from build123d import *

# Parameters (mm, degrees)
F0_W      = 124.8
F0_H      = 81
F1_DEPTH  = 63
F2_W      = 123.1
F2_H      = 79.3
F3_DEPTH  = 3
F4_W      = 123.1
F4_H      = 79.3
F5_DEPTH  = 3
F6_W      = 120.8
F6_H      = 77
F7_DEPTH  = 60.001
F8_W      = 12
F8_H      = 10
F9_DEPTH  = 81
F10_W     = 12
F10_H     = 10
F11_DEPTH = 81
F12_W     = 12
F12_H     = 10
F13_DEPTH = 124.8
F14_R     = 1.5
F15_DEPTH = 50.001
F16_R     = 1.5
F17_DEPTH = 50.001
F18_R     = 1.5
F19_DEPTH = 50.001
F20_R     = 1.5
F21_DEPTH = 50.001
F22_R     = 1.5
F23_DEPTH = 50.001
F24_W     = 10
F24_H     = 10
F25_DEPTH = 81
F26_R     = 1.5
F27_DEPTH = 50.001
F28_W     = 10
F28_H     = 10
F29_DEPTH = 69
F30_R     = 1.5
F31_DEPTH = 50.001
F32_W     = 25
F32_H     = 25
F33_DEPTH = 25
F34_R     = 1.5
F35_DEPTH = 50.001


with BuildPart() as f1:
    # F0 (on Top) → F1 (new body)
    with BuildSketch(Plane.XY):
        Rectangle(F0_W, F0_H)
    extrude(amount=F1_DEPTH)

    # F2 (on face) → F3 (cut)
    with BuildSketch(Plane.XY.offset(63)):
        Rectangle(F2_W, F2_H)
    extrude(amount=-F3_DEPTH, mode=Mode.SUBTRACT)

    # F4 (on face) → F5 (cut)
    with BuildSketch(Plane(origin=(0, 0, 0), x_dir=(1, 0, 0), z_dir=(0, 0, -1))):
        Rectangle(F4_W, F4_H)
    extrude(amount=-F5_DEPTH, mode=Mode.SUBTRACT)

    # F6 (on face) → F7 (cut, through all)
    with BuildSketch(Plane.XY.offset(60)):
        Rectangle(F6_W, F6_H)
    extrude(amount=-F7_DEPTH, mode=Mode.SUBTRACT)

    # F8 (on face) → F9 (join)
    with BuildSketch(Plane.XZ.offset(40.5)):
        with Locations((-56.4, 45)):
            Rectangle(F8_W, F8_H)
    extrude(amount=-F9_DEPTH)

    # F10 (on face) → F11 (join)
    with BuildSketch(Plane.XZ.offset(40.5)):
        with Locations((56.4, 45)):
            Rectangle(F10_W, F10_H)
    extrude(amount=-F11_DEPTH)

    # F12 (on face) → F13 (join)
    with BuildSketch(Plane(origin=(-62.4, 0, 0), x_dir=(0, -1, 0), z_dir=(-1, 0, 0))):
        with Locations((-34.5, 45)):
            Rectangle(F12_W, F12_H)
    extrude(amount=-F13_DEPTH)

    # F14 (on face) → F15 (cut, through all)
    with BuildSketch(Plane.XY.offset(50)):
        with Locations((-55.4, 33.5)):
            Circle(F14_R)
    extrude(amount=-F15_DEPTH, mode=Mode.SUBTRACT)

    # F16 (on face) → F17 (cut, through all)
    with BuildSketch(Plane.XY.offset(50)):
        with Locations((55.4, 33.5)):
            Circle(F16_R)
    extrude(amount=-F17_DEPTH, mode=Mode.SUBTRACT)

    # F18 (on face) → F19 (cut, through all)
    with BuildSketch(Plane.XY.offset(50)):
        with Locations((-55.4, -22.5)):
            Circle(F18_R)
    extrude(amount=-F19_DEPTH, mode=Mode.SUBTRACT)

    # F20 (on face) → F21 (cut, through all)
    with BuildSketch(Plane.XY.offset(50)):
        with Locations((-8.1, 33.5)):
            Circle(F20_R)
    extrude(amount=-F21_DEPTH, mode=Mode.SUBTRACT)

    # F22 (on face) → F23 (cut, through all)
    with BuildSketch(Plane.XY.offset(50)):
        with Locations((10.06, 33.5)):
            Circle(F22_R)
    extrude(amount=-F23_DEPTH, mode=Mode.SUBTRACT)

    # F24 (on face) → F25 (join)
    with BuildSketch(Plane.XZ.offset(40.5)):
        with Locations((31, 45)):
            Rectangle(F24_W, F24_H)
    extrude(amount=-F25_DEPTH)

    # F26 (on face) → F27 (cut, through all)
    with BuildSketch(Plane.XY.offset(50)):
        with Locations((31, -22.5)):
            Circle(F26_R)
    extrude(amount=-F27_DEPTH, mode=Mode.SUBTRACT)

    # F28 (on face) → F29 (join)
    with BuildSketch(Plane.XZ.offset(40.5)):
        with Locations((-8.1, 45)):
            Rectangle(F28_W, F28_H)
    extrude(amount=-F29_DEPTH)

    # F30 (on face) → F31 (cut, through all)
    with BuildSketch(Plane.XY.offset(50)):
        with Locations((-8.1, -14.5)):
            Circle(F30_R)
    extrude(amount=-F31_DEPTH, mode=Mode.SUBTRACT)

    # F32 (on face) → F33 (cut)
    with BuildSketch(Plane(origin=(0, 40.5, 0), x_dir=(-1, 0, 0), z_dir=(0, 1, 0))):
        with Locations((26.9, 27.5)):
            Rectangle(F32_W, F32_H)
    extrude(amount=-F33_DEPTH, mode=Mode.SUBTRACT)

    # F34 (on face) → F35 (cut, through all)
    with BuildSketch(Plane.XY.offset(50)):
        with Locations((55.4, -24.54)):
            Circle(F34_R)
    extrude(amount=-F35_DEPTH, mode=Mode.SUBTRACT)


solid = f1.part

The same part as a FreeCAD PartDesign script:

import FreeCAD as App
import Part
import Sketcher

V = App.Vector
Q = App.Units.Quantity


def add_polygon(sketch, points):
    """Adds a closed chain of lines whose ends are joined by coincident constraints."""
    first, n = sketch.GeometryCount, len(points)
    for a, b in zip(points, points[1:] + points[:1]):
        sketch.addGeometry(Part.LineSegment(App.Vector(*a, 0), App.Vector(*b, 0)), False)
    for i in range(n):
        sketch.addConstraint(Sketcher.Constraint("Coincident", first + i, 2, first + (i + 1) % n, 1))

doc = App.newDocument("Part")
body = doc.addObject("PartDesign::Body", "Body")

# Sketch on XY plane
sketch1 = body.newObject("Sketcher::SketchObject", "Sketch")
sketch1.AttachmentSupport = (doc.getObject("XY_Plane"), [""])
sketch1.MapMode = "FlatFace"
add_polygon(sketch1, [(-62, 40), (-62, -40), (62, -40), (62, 40)])  # lines 0-3
sketch1.addConstraint(Sketcher.Constraint("Vertical", 0))
sketch1.addConstraint(Sketcher.Constraint("Horizontal", 1))
sketch1.addConstraint(Sketcher.Constraint("Vertical", 2))
sketch1.addConstraint(Sketcher.Constraint("Horizontal", 3))
sketch1.addConstraint(Sketcher.Constraint("Symmetric", 0, 2, 2, 2, -1, 1))
sketch1.addConstraint(Sketcher.Constraint("DistanceY", 0, 2, 0, 1, Q("81 mm")))
sketch1.addConstraint(Sketcher.Constraint("DistanceX", 1, 1, 1, 2, Q("124.8 mm")))
pad1 = body.newObject("PartDesign::Pad", "Pad")
pad1.Profile = sketch1
pad1.Length = 63

# Sketch on XY plane
sketch2 = body.newObject("Sketcher::SketchObject", "Sketch001")
sketch2.AttachmentSupport = (doc.getObject("XY_Plane"), [""])
sketch2.MapMode = "FlatFace"
sketch2.AttachmentOffset = App.Placement(V(0, 0, 63), App.Rotation())
add_polygon(sketch2, [(-62, 40), (-62, -40), (62, -40), (62, 40)])  # lines 0-3
sketch2.addConstraint(Sketcher.Constraint("Vertical", 0))
sketch2.addConstraint(Sketcher.Constraint("Horizontal", 1))
sketch2.addConstraint(Sketcher.Constraint("Vertical", 2))
sketch2.addConstraint(Sketcher.Constraint("Horizontal", 3))
sketch2.addConstraint(Sketcher.Constraint("Symmetric", 0, 2, 2, 2, -1, 1))
sketch2.addConstraint(Sketcher.Constraint("DistanceX", 1, 1, 1, 2, Q("123.1 mm")))
sketch2.addConstraint(Sketcher.Constraint("DistanceY", 0, 2, 0, 1, Q("79.3 mm")))
pocket1 = body.newObject("PartDesign::Pocket", "Pocket")
pocket1.Profile = sketch2
pocket1.Length = 3

# Sketch on XY plane
sketch3 = body.newObject("Sketcher::SketchObject", "Sketch002")
sketch3.AttachmentSupport = (doc.getObject("XY_Plane"), [""])
sketch3.MapMode = "FlatFace"
add_polygon(sketch3, [(-62, -40), (-62, 40), (62, 40), (62, -40)])  # lines 0-3
sketch3.addConstraint(Sketcher.Constraint("Vertical", 0))
sketch3.addConstraint(Sketcher.Constraint("Horizontal", 1))
sketch3.addConstraint(Sketcher.Constraint("Vertical", 2))
sketch3.addConstraint(Sketcher.Constraint("Horizontal", 3))
sketch3.addConstraint(Sketcher.Constraint("Symmetric", 0, 2, 2, 2, -1, 1))
sketch3.addConstraint(Sketcher.Constraint("DistanceX", 1, 1, 1, 2, Q("123.1 mm")))
sketch3.addConstraint(Sketcher.Constraint("DistanceY", 0, 1, 0, 2, Q("79.3 mm")))
pocket2 = body.newObject("PartDesign::Pocket", "Pocket001")
pocket2.Profile = sketch3
pocket2.Length = 3
pocket2.Reversed = True

# Sketch on XY plane
sketch4 = body.newObject("Sketcher::SketchObject", "Sketch003")
sketch4.AttachmentSupport = (doc.getObject("XY_Plane"), [""])
sketch4.MapMode = "FlatFace"
sketch4.AttachmentOffset = App.Placement(V(0, 0, 60), App.Rotation())
add_polygon(sketch4, [(-60, 38), (-60, -38), (60, -38), (60, 38)])  # lines 0-3
sketch4.addConstraint(Sketcher.Constraint("Vertical", 0))
sketch4.addConstraint(Sketcher.Constraint("Horizontal", 1))
sketch4.addConstraint(Sketcher.Constraint("Vertical", 2))
sketch4.addConstraint(Sketcher.Constraint("Horizontal", 3))
sketch4.addConstraint(Sketcher.Constraint("Symmetric", 0, 2, 2, 2, -1, 1))
sketch4.addConstraint(Sketcher.Constraint("DistanceY", 0, 2, 0, 1, Q("77 mm")))
sketch4.addConstraint(Sketcher.Constraint("DistanceX", 1, 1, 1, 2, Q("120.8 mm")))
pocket3 = body.newObject("PartDesign::Pocket", "Pocket002")
pocket3.Profile = sketch4
pocket3.Type = "ThroughAll"

# Sketch on XZ plane
sketch5 = body.newObject("Sketcher::SketchObject", "Sketch004")
sketch5.AttachmentSupport = (doc.getObject("XZ_Plane"), [""])
sketch5.MapMode = "FlatFace"
sketch5.AttachmentOffset = App.Placement(V(0, 0, 40.5), App.Rotation())
add_polygon(sketch5, [(-62, 50), (-62, 40), (-50, 40), (-50, 50)])  # lines 0-3
sketch5.addConstraint(Sketcher.Constraint("Vertical", 0))
sketch5.addConstraint(Sketcher.Constraint("Horizontal", 1))
sketch5.addConstraint(Sketcher.Constraint("Vertical", 2))
sketch5.addConstraint(Sketcher.Constraint("Horizontal", 3))
sketch5.addConstraint(Sketcher.Constraint("DistanceX", 1, 1, 1, 2, Q("12 mm")))
sketch5.addConstraint(Sketcher.Constraint("DistanceY", 0, 2, 0, 1, Q("10 mm")))
sketch5.addConstraint(Sketcher.Constraint("DistanceY", -1, 1, 0, 2, Q("40 mm")))
sketch5.addConstraint(Sketcher.Constraint("DistanceX", 0, 2, -1, 1, Q("62.4 mm")))
pad2 = body.newObject("PartDesign::Pad", "Pad001")
pad2.Profile = sketch5
pad2.Length = 81
pad2.Reversed = True

# Sketch on XZ plane
sketch6 = body.newObject("Sketcher::SketchObject", "Sketch005")
sketch6.AttachmentSupport = (doc.getObject("XZ_Plane"), [""])
sketch6.MapMode = "FlatFace"
sketch6.AttachmentOffset = App.Placement(V(0, 0, 40.5), App.Rotation())
add_polygon(sketch6, [(50, 50), (50, 40), (62, 40), (62, 50)])  # lines 0-3
sketch6.addConstraint(Sketcher.Constraint("Vertical", 0))
sketch6.addConstraint(Sketcher.Constraint("Horizontal", 1))
sketch6.addConstraint(Sketcher.Constraint("Vertical", 2))
sketch6.addConstraint(Sketcher.Constraint("Horizontal", 3))
sketch6.addConstraint(Sketcher.Constraint("DistanceX", 1, 1, 1, 2, Q("12 mm")))
sketch6.addConstraint(Sketcher.Constraint("DistanceY", 0, 2, 0, 1, Q("10 mm")))
sketch6.addConstraint(Sketcher.Constraint("DistanceY", -1, 1, 0, 2, Q("40 mm")))
sketch6.addConstraint(Sketcher.Constraint("DistanceX", -1, 1, 0, 2, Q("50.4 mm")))
pad3 = body.newObject("PartDesign::Pad", "Pad002")
pad3.Profile = sketch6
pad3.Length = 81
pad3.Reversed = True

# Sketch on YZ plane
sketch7 = body.newObject("Sketcher::SketchObject", "Sketch006")
sketch7.AttachmentSupport = (doc.getObject("YZ_Plane"), [""])
sketch7.MapMode = "FlatFace"
sketch7.AttachmentOffset = App.Placement(V(0, 0, -62.4), App.Rotation())
add_polygon(sketch7, [(40, 50), (40, 40), (28, 40), (28, 50)])  # lines 0-3
sketch7.addConstraint(Sketcher.Constraint("Vertical", 0))
sketch7.addConstraint(Sketcher.Constraint("Horizontal", 1))
sketch7.addConstraint(Sketcher.Constraint("Vertical", 2))
sketch7.addConstraint(Sketcher.Constraint("Horizontal", 3))
sketch7.addConstraint(Sketcher.Constraint("DistanceX", 1, 2, 1, 1, Q("12 mm")))
sketch7.addConstraint(Sketcher.Constraint("DistanceY", 0, 2, 0, 1, Q("10 mm")))
sketch7.addConstraint(Sketcher.Constraint("DistanceY", -1, 1, 0, 2, Q("40 mm")))
sketch7.addConstraint(Sketcher.Constraint("DistanceX", -1, 1, 0, 2, Q("40.5 mm")))
pad4 = body.newObject("PartDesign::Pad", "Pad003")
pad4.Profile = sketch7
pad4.Length = 124.8

# Sketch on XY plane
sketch8 = body.newObject("Sketcher::SketchObject", "Sketch007")
sketch8.AttachmentSupport = (doc.getObject("XY_Plane"), [""])
sketch8.MapMode = "FlatFace"
sketch8.AttachmentOffset = App.Placement(V(0, 0, 50), App.Rotation())
sketch8.addGeometry(Part.Circle(V(-55.4, 33.5, 0), V(0, 0, 1), 1.5), False)
sketch8.addConstraint(Sketcher.Constraint("Diameter", 0, Q("3 mm")))
sketch8.addConstraint(Sketcher.Constraint("DistanceX", 0, 3, -1, 1, Q("55.4 mm")))
sketch8.addConstraint(Sketcher.Constraint("DistanceY", -1, 1, 0, 3, Q("33.5 mm")))
pocket4 = body.newObject("PartDesign::Pocket", "Pocket003")
pocket4.Profile = sketch8
pocket4.Type = "ThroughAll"

# Sketch on XY plane
sketch9 = body.newObject("Sketcher::SketchObject", "Sketch008")
sketch9.AttachmentSupport = (doc.getObject("XY_Plane"), [""])
sketch9.MapMode = "FlatFace"
sketch9.AttachmentOffset = App.Placement(V(0, 0, 50), App.Rotation())
sketch9.addGeometry(Part.Circle(V(55.4, 33.5, 0), V(0, 0, 1), 1.5), False)
sketch9.addConstraint(Sketcher.Constraint("Diameter", 0, Q("3 mm")))
sketch9.addConstraint(Sketcher.Constraint("DistanceX", -1, 1, 0, 3, Q("55.4 mm")))
sketch9.addConstraint(Sketcher.Constraint("DistanceY", -1, 1, 0, 3, Q("33.5 mm")))
pocket5 = body.newObject("PartDesign::Pocket", "Pocket004")
pocket5.Profile = sketch9
pocket5.Type = "ThroughAll"

# Sketch on XY plane
sketch10 = body.newObject("Sketcher::SketchObject", "Sketch009")
sketch10.AttachmentSupport = (doc.getObject("XY_Plane"), [""])
sketch10.MapMode = "FlatFace"
sketch10.AttachmentOffset = App.Placement(V(0, 0, 50), App.Rotation())
sketch10.addGeometry(Part.Circle(V(-55.4, -22.5, 0), V(0, 0, 1), 1.5), False)
sketch10.addConstraint(Sketcher.Constraint("Diameter", 0, Q("3 mm")))
sketch10.addConstraint(Sketcher.Constraint("DistanceX", 0, 3, -1, 1, Q("55.4 mm")))
sketch10.addConstraint(Sketcher.Constraint("DistanceY", 0, 3, -1, 1, Q("22.5 mm")))
pocket6 = body.newObject("PartDesign::Pocket", "Pocket005")
pocket6.Profile = sketch10
pocket6.Type = "ThroughAll"

# Sketch on XY plane
sketch11 = body.newObject("Sketcher::SketchObject", "Sketch010")
sketch11.AttachmentSupport = (doc.getObject("XY_Plane"), [""])
sketch11.MapMode = "FlatFace"
sketch11.AttachmentOffset = App.Placement(V(0, 0, 50), App.Rotation())
sketch11.addGeometry(Part.Circle(V(-8.1, 33.5, 0), V(0, 0, 1), 1.5), False)
sketch11.addConstraint(Sketcher.Constraint("Diameter", 0, Q("3 mm")))
sketch11.addConstraint(Sketcher.Constraint("DistanceX", 0, 3, -1, 1, Q("8.1 mm")))
sketch11.addConstraint(Sketcher.Constraint("DistanceY", -1, 1, 0, 3, Q("33.5 mm")))
pocket7 = body.newObject("PartDesign::Pocket", "Pocket006")
pocket7.Profile = sketch11
pocket7.Type = "ThroughAll"

# Sketch on XY plane
sketch12 = body.newObject("Sketcher::SketchObject", "Sketch011")
sketch12.AttachmentSupport = (doc.getObject("XY_Plane"), [""])
sketch12.MapMode = "FlatFace"
sketch12.AttachmentOffset = App.Placement(V(0, 0, 50), App.Rotation())
sketch12.addGeometry(Part.Circle(V(10.1, 33.5, 0), V(0, 0, 1), 1.5), False)
sketch12.addConstraint(Sketcher.Constraint("Diameter", 0, Q("3 mm")))
sketch12.addConstraint(Sketcher.Constraint("DistanceY", -1, 1, 0, 3, Q("33.5 mm")))
sketch12.addConstraint(Sketcher.Constraint("DistanceX", -1, 1, 0, 3, Q("10.06 mm")))
pocket8 = body.newObject("PartDesign::Pocket", "Pocket007")
pocket8.Profile = sketch12
pocket8.Type = "ThroughAll"

# Sketch on XZ plane
sketch13 = body.newObject("Sketcher::SketchObject", "Sketch012")
sketch13.AttachmentSupport = (doc.getObject("XZ_Plane"), [""])
sketch13.MapMode = "FlatFace"
sketch13.AttachmentOffset = App.Placement(V(0, 0, 40.5), App.Rotation())
add_polygon(sketch13, [(26, 50), (26, 40), (36, 40), (36, 50)])  # lines 0-3
sketch13.addConstraint(Sketcher.Constraint("Vertical", 0))
sketch13.addConstraint(Sketcher.Constraint("Horizontal", 1))
sketch13.addConstraint(Sketcher.Constraint("Vertical", 2))
sketch13.addConstraint(Sketcher.Constraint("Horizontal", 3))
sketch13.addConstraint(Sketcher.Constraint("Equal", 3, 0))
sketch13.addConstraint(Sketcher.Constraint("DistanceX", 1, 1, 1, 2, Q("10 mm")))
sketch13.addConstraint(Sketcher.Constraint("DistanceX", -1, 1, 0, 2, Q("26 mm")))
sketch13.addConstraint(Sketcher.Constraint("DistanceY", -1, 1, 0, 2, Q("40 mm")))
pad5 = body.newObject("PartDesign::Pad", "Pad004")
pad5.Profile = sketch13
pad5.Length = 81
pad5.Reversed = True

# Sketch on XY plane
sketch14 = body.newObject("Sketcher::SketchObject", "Sketch013")
sketch14.AttachmentSupport = (doc.getObject("XY_Plane"), [""])
sketch14.MapMode = "FlatFace"
sketch14.AttachmentOffset = App.Placement(V(0, 0, 50), App.Rotation())
sketch14.addGeometry(Part.Circle(V(31, -22.5, 0), V(0, 0, 1), 1.5), False)
sketch14.addConstraint(Sketcher.Constraint("Diameter", 0, Q("3 mm")))
sketch14.addConstraint(Sketcher.Constraint("DistanceX", -1, 1, 0, 3, Q("31 mm")))
sketch14.addConstraint(Sketcher.Constraint("DistanceY", 0, 3, -1, 1, Q("22.5 mm")))
pocket9 = body.newObject("PartDesign::Pocket", "Pocket008")
pocket9.Profile = sketch14
pocket9.Type = "ThroughAll"

# Sketch on XZ plane
sketch15 = body.newObject("Sketcher::SketchObject", "Sketch014")
sketch15.AttachmentSupport = (doc.getObject("XZ_Plane"), [""])
sketch15.MapMode = "FlatFace"
sketch15.AttachmentOffset = App.Placement(V(0, 0, 40.5), App.Rotation())
add_polygon(sketch15, [(-13, 50), (-13, 40), (-3, 40), (-3, 50)])  # lines 0-3
sketch15.addConstraint(Sketcher.Constraint("Vertical", 0))
sketch15.addConstraint(Sketcher.Constraint("Horizontal", 1))
sketch15.addConstraint(Sketcher.Constraint("Vertical", 2))
sketch15.addConstraint(Sketcher.Constraint("Horizontal", 3))
sketch15.addConstraint(Sketcher.Constraint("Equal", 3, 0))
sketch15.addConstraint(Sketcher.Constraint("DistanceX", 1, 1, 1, 2, Q("10 mm")))
sketch15.addConstraint(Sketcher.Constraint("DistanceY", -1, 1, 0, 2, Q("40 mm")))
sketch15.addConstraint(Sketcher.Constraint("DistanceX", 0, 2, -1, 1, Q("13.1 mm")))
pad6 = body.newObject("PartDesign::Pad", "Pad005")
pad6.Profile = sketch15
pad6.Length = 69
pad6.Reversed = True

# Sketch on XY plane
sketch16 = body.newObject("Sketcher::SketchObject", "Sketch015")
sketch16.AttachmentSupport = (doc.getObject("XY_Plane"), [""])
sketch16.MapMode = "FlatFace"
sketch16.AttachmentOffset = App.Placement(V(0, 0, 50), App.Rotation())
sketch16.addGeometry(Part.Circle(V(-8.1, -14.5, 0), V(0, 0, 1), 1.5), False)
sketch16.addConstraint(Sketcher.Constraint("Diameter", 0, Q("3 mm")))
sketch16.addConstraint(Sketcher.Constraint("DistanceX", 0, 3, -1, 1, Q("8.1 mm")))
sketch16.addConstraint(Sketcher.Constraint("DistanceY", 0, 3, -1, 1, Q("14.5 mm")))
pocket10 = body.newObject("PartDesign::Pocket", "Pocket009")
pocket10.Profile = sketch16
pocket10.Type = "ThroughAll"

# Sketch on XZ plane
sketch17 = body.newObject("Sketcher::SketchObject", "Sketch016")
sketch17.AttachmentSupport = (doc.getObject("XZ_Plane"), [""])
sketch17.MapMode = "FlatFace"
sketch17.AttachmentOffset = App.Placement(V(0, 0, -40.5), App.Rotation())
add_polygon(sketch17, [(-14, 40), (-14, 15), (-39, 15), (-39, 40)])  # lines 0-3
sketch17.addConstraint(Sketcher.Constraint("Vertical", 0))
sketch17.addConstraint(Sketcher.Constraint("Horizontal", 1))
sketch17.addConstraint(Sketcher.Constraint("Vertical", 2))
sketch17.addConstraint(Sketcher.Constraint("Horizontal", 3))
sketch17.addConstraint(Sketcher.Constraint("Equal", 3, 0))
sketch17.addConstraint(Sketcher.Constraint("DistanceX", 1, 2, 1, 1, Q("25 mm")))
sketch17.addConstraint(Sketcher.Constraint("DistanceY", -1, 1, 0, 2, Q("15 mm")))
sketch17.addConstraint(Sketcher.Constraint("DistanceX", 0, 2, -1, 1, Q("14.4 mm")))
pocket11 = body.newObject("PartDesign::Pocket", "Pocket010")
pocket11.Profile = sketch17
pocket11.Length = 25
pocket11.Reversed = True

# Sketch on XY plane
sketch18 = body.newObject("Sketcher::SketchObject", "Sketch017")
sketch18.AttachmentSupport = (doc.getObject("XY_Plane"), [""])
sketch18.MapMode = "FlatFace"
sketch18.AttachmentOffset = App.Placement(V(0, 0, 50), App.Rotation())
sketch18.addGeometry(Part.Circle(V(55.4, -24.5, 0), V(0, 0, 1), 1.5), False)
sketch18.addConstraint(Sketcher.Constraint("Diameter", 0, Q("3 mm")))
sketch18.addConstraint(Sketcher.Constraint("DistanceX", -1, 1, 0, 3, Q("55.4 mm")))
sketch18.addConstraint(Sketcher.Constraint("DistanceY", 0, 3, -1, 1, Q("24.54 mm")))
pocket12 = body.newObject("PartDesign::Pocket", "Pocket011")
pocket12.Profile = sketch18
pocket12.Type = "ThroughAll"

doc.recompute()
